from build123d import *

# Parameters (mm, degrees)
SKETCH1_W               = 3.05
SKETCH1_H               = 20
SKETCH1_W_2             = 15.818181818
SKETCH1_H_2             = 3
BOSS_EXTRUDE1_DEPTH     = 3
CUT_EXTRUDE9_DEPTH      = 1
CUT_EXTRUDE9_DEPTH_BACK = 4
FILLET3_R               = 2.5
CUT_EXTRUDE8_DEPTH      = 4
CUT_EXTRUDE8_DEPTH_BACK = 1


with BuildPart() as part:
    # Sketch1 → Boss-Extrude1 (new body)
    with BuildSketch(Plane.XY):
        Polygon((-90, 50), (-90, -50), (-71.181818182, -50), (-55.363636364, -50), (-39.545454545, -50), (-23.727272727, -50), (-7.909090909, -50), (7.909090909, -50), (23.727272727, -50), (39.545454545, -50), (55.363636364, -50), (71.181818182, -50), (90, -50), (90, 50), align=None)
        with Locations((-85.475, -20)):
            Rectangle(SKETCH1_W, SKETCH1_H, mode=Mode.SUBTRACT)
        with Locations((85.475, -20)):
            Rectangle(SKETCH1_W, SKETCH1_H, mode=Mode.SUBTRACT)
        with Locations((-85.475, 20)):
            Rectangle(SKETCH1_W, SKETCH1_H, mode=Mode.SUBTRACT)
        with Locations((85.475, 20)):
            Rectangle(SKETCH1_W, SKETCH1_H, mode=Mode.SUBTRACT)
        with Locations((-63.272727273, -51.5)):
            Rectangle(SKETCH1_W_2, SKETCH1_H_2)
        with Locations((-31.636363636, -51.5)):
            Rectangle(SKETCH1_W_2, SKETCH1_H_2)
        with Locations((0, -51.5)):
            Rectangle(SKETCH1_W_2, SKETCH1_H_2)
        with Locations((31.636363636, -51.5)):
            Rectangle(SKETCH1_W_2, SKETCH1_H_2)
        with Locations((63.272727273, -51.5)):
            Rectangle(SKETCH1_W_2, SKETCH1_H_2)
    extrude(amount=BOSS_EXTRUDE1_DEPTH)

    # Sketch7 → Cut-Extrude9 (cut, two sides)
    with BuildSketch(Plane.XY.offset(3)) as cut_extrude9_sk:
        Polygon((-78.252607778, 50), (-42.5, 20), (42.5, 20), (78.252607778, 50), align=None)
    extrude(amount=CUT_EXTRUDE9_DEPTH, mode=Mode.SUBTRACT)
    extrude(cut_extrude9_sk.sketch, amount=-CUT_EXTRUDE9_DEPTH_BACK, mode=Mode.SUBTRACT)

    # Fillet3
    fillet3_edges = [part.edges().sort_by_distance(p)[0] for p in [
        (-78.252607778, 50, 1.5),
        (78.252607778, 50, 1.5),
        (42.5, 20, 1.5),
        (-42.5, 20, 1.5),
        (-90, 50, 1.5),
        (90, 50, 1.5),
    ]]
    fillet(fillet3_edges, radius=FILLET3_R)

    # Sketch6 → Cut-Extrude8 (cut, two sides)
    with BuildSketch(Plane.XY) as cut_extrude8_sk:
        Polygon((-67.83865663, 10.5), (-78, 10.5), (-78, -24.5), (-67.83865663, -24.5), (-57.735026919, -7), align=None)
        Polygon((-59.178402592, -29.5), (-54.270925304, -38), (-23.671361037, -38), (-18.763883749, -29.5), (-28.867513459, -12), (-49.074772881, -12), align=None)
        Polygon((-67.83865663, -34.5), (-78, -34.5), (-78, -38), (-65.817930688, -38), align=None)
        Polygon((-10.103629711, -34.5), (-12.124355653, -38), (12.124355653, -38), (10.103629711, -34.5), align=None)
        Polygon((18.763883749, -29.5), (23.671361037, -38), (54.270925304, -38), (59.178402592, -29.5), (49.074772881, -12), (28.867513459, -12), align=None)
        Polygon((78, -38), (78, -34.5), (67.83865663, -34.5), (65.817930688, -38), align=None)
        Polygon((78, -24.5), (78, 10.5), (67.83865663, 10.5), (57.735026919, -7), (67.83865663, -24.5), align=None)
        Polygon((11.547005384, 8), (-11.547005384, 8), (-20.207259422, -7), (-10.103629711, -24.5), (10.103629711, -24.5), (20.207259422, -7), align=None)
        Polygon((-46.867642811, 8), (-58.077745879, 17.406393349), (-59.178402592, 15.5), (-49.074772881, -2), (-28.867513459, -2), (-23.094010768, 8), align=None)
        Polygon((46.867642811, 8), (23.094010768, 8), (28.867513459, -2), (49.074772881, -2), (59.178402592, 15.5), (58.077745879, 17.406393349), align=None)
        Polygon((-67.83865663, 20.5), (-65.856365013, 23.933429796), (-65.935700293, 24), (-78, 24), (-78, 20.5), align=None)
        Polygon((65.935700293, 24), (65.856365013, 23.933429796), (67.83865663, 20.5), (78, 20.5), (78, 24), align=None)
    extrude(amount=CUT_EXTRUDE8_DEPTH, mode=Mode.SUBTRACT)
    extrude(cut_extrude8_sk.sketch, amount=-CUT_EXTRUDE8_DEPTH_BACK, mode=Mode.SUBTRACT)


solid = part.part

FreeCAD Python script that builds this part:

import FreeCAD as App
import Part
import Sketcher
Q = App.Units.Quantity


def edges_at(feature, points):
    """Names of the edges that pass closest to the given points."""
    edges = feature.Shape.Edges
    near = lambda p: min(range(len(edges)), key=lambda i: edges[i].distToShape(Part.Vertex(*p))[0])
    return sorted({f"Edge{near(p) + 1}" for p in points})


def add_polygon(sketch, points):
    """Adds a closed chain of lines whose ends are joined by coincident constraints."""
    first, n = sketch.GeometryCount, len(points)
    for a, b in zip(points, points[1:] + points[:1]):
        sketch.addGeometry(Part.LineSegment(App.Vector(*a, 0), App.Vector(*b, 0)), False)
    for i in range(n):
        sketch.addConstraint(Sketcher.Constraint("Coincident", first + i, 2, first + (i + 1) % n, 1))

doc = App.newDocument("Part")
params = doc.addObject("Spreadsheet::Sheet", "Params")
for row, (alias, value) in enumerate([
    ("sketch1_width", "180 mm"),
    ("sketch1_height", "100 mm"),
    ("sketch1_height2", "3 mm"),
    ("sketch1_height3", "20 mm"),
    ("sketch1_width2", "3.05 mm"),
    ("pad1_length", "3 mm"),
    ("sketch2_width", "85 mm"),
    ("fillet_radius", "2.5 mm"),
    ("sketch3_height", "35 mm"),
    ("sketch3_height2", "3.5 mm"),
], start=1):
    params.set(f"A{row}", alias)
    params.set(f"B{row}", "=" + value)
    params.setAlias(f"B{row}", alias)

body = doc.addObject("PartDesign::Body", "Body")

sketch1 = body.newObject("Sketcher::SketchObject", "Sketch")
sketch1.AttachmentSupport = (doc.getObject("XY_Plane"), [""])
sketch1.MapMode = "FlatFace"
add_polygon(sketch1, [(-90, 50), (-90, -50), (-71.2, -50), (-71.2, -53), (-55.4, -53), (-55.4, -50), (-39.5, -50), (-39.5, -53), (-23.7, -53), (-23.7, -50), (-7.9, -50), (-7.9, -53), (7.9, -53), (7.9, -50), (23.7, -50), (23.7, -53), (39.5, -53), (39.5, -50), (55.4, -50), (55.4, -53), (71.2, -53), (71.2, -50), (90, -50), (90, 50)])
add_polygon(sketch1, [(-84, -30), (-87, -30), (-87, -10), (-84, -10)])
add_polygon(sketch1, [(87, -30), (84, -30), (84, -10), (87, -10)])
add_polygon(sketch1, [(-84, 10), (-87, 10), (-87, 30), (-84, 30)])
add_polygon(sketch1, [(87, 10), (84, 10), (84, 30), (87, 30)])
sketch1.addConstraint(Sketcher.Constraint("Vertical", 0))
sketch1.addConstraint(Sketcher.Constraint("Horizontal", 1))
sketch1.addConstraint(Sketcher.Constraint("Vertical", 2))
sketch1.addConstraint(Sketcher.Constraint("Horizontal", 3))
sketch1.addConstraint(Sketcher.Constraint("Vertical", 4))
sketch1.addConstraint(Sketcher.Constraint("Horizontal", 5))
sketch1.addConstraint(Sketcher.Constraint("Vertical", 6))
sketch1.addConstraint(Sketcher.Constraint("Horizontal", 7))
sketch1.addConstraint(Sketcher.Constraint("Vertical", 8))
sketch1.addConstraint(Sketcher.Constraint("Horizontal", 9))
sketch1.addConstraint(Sketcher.Constraint("Vertical", 10))
sketch1.addConstraint(Sketcher.Constraint("Horizontal", 11))
sketch1.addConstraint(Sketcher.Constraint("Vertical", 12))
sketch1.addConstraint(Sketcher.Constraint("Horizontal", 13))
sketch1.addConstraint(Sketcher.Constraint("Vertical", 14))
sketch1.addConstraint(Sketcher.Constraint("Horizontal", 15))
sketch1.addConstraint(Sketcher.Constraint("Vertical", 16))
sketch1.addConstraint(Sketcher.Constraint("Horizontal", 17))
sketch1.addConstraint(Sketcher.Constraint("Vertical", 18))
sketch1.addConstraint(Sketcher.Constraint("Horizontal", 19))
sketch1.addConstraint(Sketcher.Constraint("Vertical", 20))
sketch1.addConstraint(Sketcher.Constraint("Horizontal", 21))
sketch1.addConstraint(Sketcher.Constraint("Vertical", 22))
sketch1.addConstraint(Sketcher.Constraint("Horizontal", 23))
sketch1.addConstraint(Sketcher.Constraint("Horizontal", 24))
sketch1.addConstraint(Sketcher.Constraint("Vertical", 25))
sketch1.addConstraint(Sketcher.Constraint("Horizontal", 26))
sketch1.addConstraint(Sketcher.Constraint("Vertical", 27))
sketch1.addConstraint(Sketcher.Constraint("Horizontal", 28))
sketch1.addConstraint(Sketcher.Constraint("Vertical", 29))
sketch1.addConstraint(Sketcher.Constraint("Horizontal", 30))
sketch1.addConstraint(Sketcher.Constraint("Vertical", 31))
sketch1.addConstraint(Sketcher.Constraint("Horizontal", 32))
sketch1.addConstraint(Sketcher.Constraint("Vertical", 33))
sketch1.addConstraint(Sketcher.Constraint("Horizontal", 34))
sketch1.addConstraint(Sketcher.Constraint("Vertical", 35))
sketch1.addConstraint(Sketcher.Constraint("Horizontal", 36))
sketch1.addConstraint(Sketcher.Constraint("Vertical", 37))
sketch1.addConstraint(Sketcher.Constraint("Horizontal", 38))
sketch1.addConstraint(Sketcher.Constraint("Vertical", 39))
sketch1.addConstraint(Sketcher.Constraint("Symmetric", 0, 2, 22, 2, -1, 1))
sketch1.addConstraint(Sketcher.Constraint("Symmetric", 30, 2, 32, 2, -1, 1))
sketch1.addConstraint(Sketcher.Constraint("Symmetric", 28, 2, 34, 2, -1, 1))
sketch1.addConstraint(Sketcher.Constraint("Symmetric", 26, 2, 36, 2, -1, 1))
sketch1.addConstraint(Sketcher.Constraint("Symmetric", 24, 2, 38, 2, -1, 1))
sketch1.addConstraint(Sketcher.Constraint("Symmetric", 9, 2, 12, 2, -2))
sketch1.addConstraint(Sketcher.Constraint("Symmetric", 7, 2, 14, 2, -2))
sketch1.addConstraint(Sketcher.Constraint("Symmetric", 5, 2, 16, 2, -2))
sketch1.addConstraint(Sketcher.Constraint("Symmetric", 3, 2, 18, 2, -2))
sketch1.addConstraint(Sketcher.Constraint("Symmetric", 1, 2, 20, 2, -2))
sketch1.addConstraint(Sketcher.Constraint("Symmetric", 27, 2, 28, 2, -2))
sketch1.addConstraint(Sketcher.Constraint("Symmetric", 25, 2, 30, 2, -2))
sketch1.addConstraint(Sketcher.Constraint("Horizontal", 1, 2, 4, 2))
sketch1.addConstraint(Sketcher.Constraint("Horizontal", 3, 2, 6, 2))
sketch1.addConstraint(Sketcher.Constraint("Horizontal", 5, 2, 8, 2))
sketch1.addConstraint(Sketcher.Constraint("Horizontal", 7, 2, 10, 2))
sketch1.addConstraint(Sketcher.Constraint("Equal", 3, 5))
sketch1.addConstraint(Sketcher.Constraint("Equal", 5, 7))
sketch1.addConstraint(Sketcher.Constraint("Equal", 7, 9))
sketch1.addConstraint(Sketcher.Constraint("Equal", 9, 11))
sketch1.addConstraint(Sketcher.Constraint("DistanceX", 23, 2, 23, 1, Q("180 mm")))
sketch1.addConstraint(Sketcher.Constraint("DistanceY", 0, 2, 0, 1, Q("100 mm")))
sketch1.addConstraint(Sketcher.Constraint("DistanceY", 2, 2, 2, 1, Q("3 mm")))
sketch1.addConstraint(Sketcher.Constraint("DistanceY", 25, 1, 25, 2, Q("20 mm")))
sketch1.addConstraint(Sketcher.Constraint("DistanceX", 24, 2, -1, 1, Q("87 mm")))
sketch1.addConstraint(Sketcher.Constraint("DistanceY", 24, 2, -1, 1, Q("30 mm")))
sketch1.addConstraint(Sketcher.Constraint("DistanceX", 24, 2, 24, 1, Q("3.05 mm")))
sketch1.addConstraint(Sketcher.Constraint("DistanceX", 1, 1, 1, 2, Q("18.818182 mm")))
sketch1.setExpression("Constraints[100]", "Params.sketch1_width")
sketch1.setExpression("Constraints[101]", "Params.sketch1_height")
sketch1.setExpression("Constraints[102]", "Params.sketch1_height2")
sketch1.setExpression("Constraints[103]", "Params.sketch1_height3")
sketch1.setExpression("Constraints[106]", "Params.sketch1_width2")
pad1 = body.newObject("PartDesign::Pad", "Pad")
pad1.Profile = sketch1
pad1.setExpression("Length", "Params.pad1_length")

sketch2 = body.newObject("Sketcher::SketchObject", "Sketch001")
sketch2.AttachmentSupport = (doc.getObject("XY_Plane"), [""])
sketch2.MapMode = "FlatFace"
sketch2.AttachmentOffset = App.Placement(App.Vector(0, 0, 3), App.Rotation())
add_polygon(sketch2, [(-78, 50), (-42, 20), (42, 20), (78, 50)])
sketch2.addConstraint(Sketcher.Constraint("Horizontal", 1))
sketch2.addConstraint(Sketcher.Constraint("Horizontal", 3))
sketch2.addConstraint(Sketcher.Constraint("Equal", 0, 2))
sketch2.addConstraint(Sketcher.Constraint("DistanceX", 1, 1, 1, 2, Q("85 mm")))
sketch2.addConstraint(Sketcher.Constraint("Angle", 0, Q("-40 deg")))
sketch2.addConstraint(Sketcher.Constraint("DistanceY", -1, 1, 0, 2, Q("20 mm")))
sketch2.addConstraint(Sketcher.Constraint("DistanceY", -1, 1, 2, 2, Q("50 mm")))
sketch2.addConstraint(Sketcher.Constraint("DistanceX", 0, 2, -1, 1, Q("42.5 mm")))
sketch2.setExpression("Constraints[7]", "Params.sketch2_width")
pocket1 = body.newObject("PartDesign::Pocket", "Pocket")
pocket1.Profile = sketch2
pocket1.Type = "ThroughAll"
pocket1.Midplane = True
doc.recompute()

fillet = body.newObject("PartDesign::Fillet", "Fillet")
fillet.Base = (pocket1, edges_at(pocket1, [
    (-78.253, 50, 1.5),
    (78.253, 50, 1.5),
    (42.5, 20, 1.5),
    (-42.5, 20, 1.5),
    (-90, 50, 1.5),
    (90, 50, 1.5),
]))
fillet.setExpression("Radius", "Params.fillet_radius")

sketch3 = body.newObject("Sketcher::SketchObject", "Sketch002")
sketch3.AttachmentSupport = (doc.getObject("XY_Plane"), [""])
sketch3.MapMode = "FlatFace"
add_polygon(sketch3, [(-67.84, 10.5), (-78, 10.5), (-78, -24.5), (-67.84, -24.5), (-57.74, -7)])
add_polygon(sketch3, [(-59.18, -29.5), (-54.27, -38), (-23.67, -38), (-18.76, -29.5), (-28.87, -12), (-49.07, -12)])
add_polygon(sketch3, [(-67.84, -34.5), (-78, -34.5), (-78, -38), (-65.82, -38)])
add_polygon(sketch3, [(-10.1, -34.5), (-12.12, -38), (12.12, -38), (10.1, -34.5)])
add_polygon(sketch3, [(18.76, -29.5), (23.67, -38), (54.27, -38), (59.18, -29.5), (49.07, -12), (28.87, -12)])
add_polygon(sketch3, [(78, -38), (78, -34.5), (67.84, -34.5), (65.82, -38)])
add_polygon(sketch3, [(78, -24.5), (78, 10.5), (67.84, 10.5), (57.74, -7), (67.84, -24.5)])
add_polygon(sketch3, [(11.55, 8), (-11.55, 8), (-20.21, -7), (-10.1, -24.5), (10.1, -24.5), (20.21, -7)])
add_polygon(sketch3, [(-46.87, 8), (-58.08, 17.41), (-59.18, 15.5), (-49.07, -2), (-28.87, -2), (-23.09, 8)])
add_polygon(sketch3, [(46.87, 8), (23.09, 8), (28.87, -2), (49.07, -2), (59.18, 15.5), (58.08, 17.41)])
add_polygon(sketch3, [(-67.84, 20.5), (-65.86, 23.93), (-65.94, 24), (-78, 24), (-78, 20.5)])
add_polygon(sketch3, [(65.94, 24), (65.86, 23.93), (67.84, 20.5), (78, 20.5), (78, 24)])
sketch3.addConstraint(Sketcher.Constraint("Horizontal", 0))
sketch3.addConstraint(Sketcher.Constraint("Vertical", 1))
sketch3.addConstraint(Sketcher.Constraint("Horizontal", 2))
sketch3.addConstraint(Sketcher.Constraint("Horizontal", 6))
sketch3.addConstraint(Sketcher.Constraint("Horizontal", 9))
sketch3.addConstraint(Sketcher.Constraint("Horizontal", 11))
sketch3.addConstraint(Sketcher.Constraint("Vertical", 12))
sketch3.addConstraint(Sketcher.Constraint("Horizontal", 13))
sketch3.addConstraint(Sketcher.Constraint("Horizontal", 16))
sketch3.addConstraint(Sketcher.Constraint("Horizontal", 18))
sketch3.addConstraint(Sketcher.Constraint("Horizontal", 20))
sketch3.addConstraint(Sketcher.Constraint("Horizontal", 23))
sketch3.addConstraint(Sketcher.Constraint("Vertical", 25))
sketch3.addConstraint(Sketcher.Constraint("Horizontal", 26))
sketch3.addConstraint(Sketcher.Constraint("Horizontal", 28))
sketch3.addConstraint(Sketcher.Constraint("Vertical", 29))
sketch3.addConstraint(Sketcher.Constraint("Horizontal", 30))
sketch3.addConstraint(Sketcher.Constraint("Horizontal", 33))
sketch3.addConstraint(Sketcher.Constraint("Horizontal", 34))
sketch3.addConstraint(Sketcher.Constraint("Horizontal", 37))
sketch3.addConstraint(Sketcher.Constraint("Horizontal", 43))
sketch3.addConstraint(Sketcher.Constraint("Horizontal", 45))
sketch3.addConstraint(Sketcher.Constraint("Horizontal", 46))
sketch3.addConstraint(Sketcher.Constraint("Horizontal", 48))
sketch3.addConstraint(Sketcher.Constraint("Horizontal", 54))
sketch3.addConstraint(Sketcher.Constraint("Vertical", 55))
sketch3.addConstraint(Sketcher.Constraint("Horizontal", 56))
sketch3.addConstraint(Sketcher.Constraint("Horizontal", 59))
sketch3.addConstraint(Sketcher.Constraint("Vertical", 60))
sketch3.addConstraint(Sketcher.Constraint("Horizontal", 61))
sketch3.addConstraint(Sketcher.Constraint("Symmetric", 6, 2, 19, 2, -2))
sketch3.addConstraint(Sketcher.Constraint("Symmetric", 10, 2, 21, 2, -2))
sketch3.addConstraint(Sketcher.Constraint("Symmetric", 9, 2, 22, 2, -2))
sketch3.addConstraint(Sketcher.Constraint("Symmetric", 7, 2, 24, 2, -2))
sketch3.addConstraint(Sketcher.Constraint("Symmetric", 11, 2, 25, 2, -2))
sketch3.addConstraint(Sketcher.Constraint("Symmetric", 13, 2, 27, 2, -2))
sketch3.addConstraint(Sketcher.Constraint("Symmetric", 0, 2, 29, 2, -2))
sketch3.addConstraint(Sketcher.Constraint("Symmetric", 3, 2, 31, 2, -2))
sketch3.addConstraint(Sketcher.Constraint("Symmetric", 2, 2, 32, 2, -2))
sketch3.addConstraint(Sketcher.Constraint("Symmetric", 35, 2, 38, 2, -2))
sketch3.addConstraint(Sketcher.Constraint("Symmetric", 44, 2, 46, 2, -2))
sketch3.addConstraint(Sketcher.Constraint("Symmetric", 43, 2, 47, 2, -2))
sketch3.addConstraint(Sketcher.Constraint("Symmetric", 41, 2, 49, 2, -2))
sketch3.addConstraint(Sketcher.Constraint("Symmetric", 40, 2, 50, 2, -2))
sketch3.addConstraint(Sketcher.Constraint("Symmetric", 52, 2, 57, 2, -2))
sketch3.addConstraint(Sketcher.Constraint("Symmetric", 56, 2, 58, 2, -2))
sketch3.addConstraint(Sketcher.Constraint("Symmetric", 54, 2, 60, 2, -2))
sketch3.addConstraint(Sketcher.Constraint("Parallel", 4, 5))
sketch3.addConstraint(Sketcher.Constraint("Parallel", 3, 7))
sketch3.addConstraint(Sketcher.Constraint("Parallel", 5, 8))
sketch3.addConstraint(Sketcher.Constraint("Parallel", 7, 10))
sketch3.addConstraint(Sketcher.Constraint("Parallel", 8, 14))
sketch3.addConstraint(Sketcher.Constraint("Parallel", 10, 15))
sketch3.addConstraint(Sketcher.Constraint("Parallel", 14, 17))
sketch3.addConstraint(Sketcher.Constraint("Parallel", 17, 19))
sketch3.addConstraint(Sketcher.Constraint("Parallel", 15, 21))
sketch3.addConstraint(Sketcher.Constraint("Parallel", 21, 24))
sketch3.addConstraint(Sketcher.Constraint("Parallel", 24, 27))
sketch3.addConstraint(Sketcher.Constraint("Parallel", 27, 31))
sketch3.addConstraint(Sketcher.Constraint("Parallel", 31, 35))
sketch3.addConstraint(Sketcher.Constraint("Parallel", 32, 36))
sketch3.addConstraint(Sketcher.Constraint("Parallel", 35, 38))
sketch3.addConstraint(Sketcher.Constraint("Parallel", 36, 39))
sketch3.addConstraint(Sketcher.Constraint("Parallel", 38, 41))
sketch3.addConstraint(Sketcher.Constraint("Parallel", 39, 42))
sketch3.addConstraint(Sketcher.Constraint("Parallel", 41, 44))
sketch3.addConstraint(Sketcher.Constraint("Parallel", 44, 49))
sketch3.addConstraint(Sketcher.Constraint("Parallel", 49, 52))
sketch3.addConstraint(Sketcher.Constraint("Parallel", 40, 53))
sketch3.addConstraint(Sketcher.Constraint("Parallel", 51, 57))
sketch3.addConstraint(Sketcher.Constraint("Horizontal", 7, 2, 10, 2))
sketch3.addConstraint(Sketcher.Constraint("Horizontal", 6, 2, 12, 2))
sketch3.addConstraint(Sketcher.Constraint("Horizontal", 13, 2, 15, 2))
sketch3.addConstraint(Sketcher.Constraint("Horizontal", 14, 2, 17, 2))
sketch3.addConstraint(Sketcher.Constraint("Horizontal", 31, 2, 35, 2))
sketch3.addConstraint(Sketcher.Constraint("Horizontal", 33, 2, 36, 2))
sketch3.addConstraint(Sketcher.Constraint("Horizontal", 39, 2, 44, 2))
sketch3.addConstraint(Sketcher.Constraint("Vertical", 2, 2, 4, 2))
sketch3.addConstraint(Sketcher.Constraint("Vertical", 1, 2, 11, 2))
sketch3.addConstraint(Sketcher.Constraint("Vertical", 4, 2, 14, 2))
sketch3.addConstraint(Sketcher.Constraint("Vertical", 18, 2, 36, 2))
sketch3.addConstraint(Sketcher.Constraint("Vertical", 17, 2, 37, 2))
sketch3.addConstraint(Sketcher.Constraint("Vertical", 10, 2, 41, 2))
sketch3.addConstraint(Sketcher.Constraint("Vertical", 9, 2, 42, 2))
sketch3.addConstraint(Sketcher.Constraint("Vertical", 8, 2, 43, 2))
sketch3.addConstraint(Sketcher.Constraint("Vertical", 12, 2, 54, 2))
sketch3.addConstraint(Sketcher.Constraint("Vertical", 14, 2, 56, 2))
sketch3.addConstraint(Sketcher.Constraint("Equal", 9, 18))
sketch3.addConstraint(Sketcher.Constraint("Equal", 45, 46))
sketch3.addConstraint(Sketcher.Constraint("Equal", 25, 55))
sketch3.addConstraint(Sketcher.Constraint("Equal", 4, 8))
sketch3.addConstraint(Sketcher.Constraint("DistanceY", 1, 2, 1, 1, Q("35 mm")))
sketch3.addConstraint(Sketcher.Constraint("Angle", 3, Q("60 deg")))
sketch3.addConstraint(Sketcher.Constraint("Angle", 40, Q("140 deg")))
sketch3.addConstraint(Sketcher.Constraint("DistanceY", 12, 2, 12, 1, Q("3.5 mm")))
sketch3.addConstraint(Sketcher.Constraint("DistanceX", 0, 2, -1, 1, Q("78 mm")))
sketch3.addConstraint(Sketcher.Constraint("DistanceY", 3, 2, -1, 1, Q("7 mm")))
sketch3.addConstraint(Sketcher.Constraint("DistanceY", 5, 2, -1, 1, Q("38 mm")))
sketch3.addConstraint(Sketcher.Constraint("DistanceY", 8, 2, -1, 1, Q("12 mm")))
sketch3.addConstraint(Sketcher.Constraint("DistanceY", -1, 1, 34, 2, Q("8 mm")))
sketch3.addConstraint(Sketcher.Constraint("DistanceY", 42, 2, -1, 1, Q("2 mm")))
sketch3.addConstraint(Sketcher.Constraint("DistanceY", -1, 1, 53, 2, Q("24 mm")))
sketch3.addConstraint(Sketcher.Constraint("DistanceX", 54, 2, 54, 1, Q("12.0643 mm")))
sketch3.addConstraint(Sketcher.Constraint("DistanceX", 9, 2, 9, 1, Q("20.207259 mm")))
sketch3.addConstraint(Sketcher.Constraint("DistanceX", 13, 1, 13, 2, Q("12.182069 mm")))
sketch3.addConstraint(Sketcher.Constraint("Distance", 40, Q("14.63375 mm")))
sketch3.addConstraint(Sketcher.Constraint("DistanceX", 6, 2, -1, 1, Q("23.671361 mm")))
sketch3.setExpression("Constraints[153]", "Params.sketch3_height")
sketch3.setExpression("Constraints[156]", "Params.sketch3_height2")
pocket2 = body.newObject("PartDesign::Pocket", "Pocket001")
pocket2.Profile = sketch3
pocket2.Type = "ThroughAll"
pocket2.Midplane = True

doc.recompute()
